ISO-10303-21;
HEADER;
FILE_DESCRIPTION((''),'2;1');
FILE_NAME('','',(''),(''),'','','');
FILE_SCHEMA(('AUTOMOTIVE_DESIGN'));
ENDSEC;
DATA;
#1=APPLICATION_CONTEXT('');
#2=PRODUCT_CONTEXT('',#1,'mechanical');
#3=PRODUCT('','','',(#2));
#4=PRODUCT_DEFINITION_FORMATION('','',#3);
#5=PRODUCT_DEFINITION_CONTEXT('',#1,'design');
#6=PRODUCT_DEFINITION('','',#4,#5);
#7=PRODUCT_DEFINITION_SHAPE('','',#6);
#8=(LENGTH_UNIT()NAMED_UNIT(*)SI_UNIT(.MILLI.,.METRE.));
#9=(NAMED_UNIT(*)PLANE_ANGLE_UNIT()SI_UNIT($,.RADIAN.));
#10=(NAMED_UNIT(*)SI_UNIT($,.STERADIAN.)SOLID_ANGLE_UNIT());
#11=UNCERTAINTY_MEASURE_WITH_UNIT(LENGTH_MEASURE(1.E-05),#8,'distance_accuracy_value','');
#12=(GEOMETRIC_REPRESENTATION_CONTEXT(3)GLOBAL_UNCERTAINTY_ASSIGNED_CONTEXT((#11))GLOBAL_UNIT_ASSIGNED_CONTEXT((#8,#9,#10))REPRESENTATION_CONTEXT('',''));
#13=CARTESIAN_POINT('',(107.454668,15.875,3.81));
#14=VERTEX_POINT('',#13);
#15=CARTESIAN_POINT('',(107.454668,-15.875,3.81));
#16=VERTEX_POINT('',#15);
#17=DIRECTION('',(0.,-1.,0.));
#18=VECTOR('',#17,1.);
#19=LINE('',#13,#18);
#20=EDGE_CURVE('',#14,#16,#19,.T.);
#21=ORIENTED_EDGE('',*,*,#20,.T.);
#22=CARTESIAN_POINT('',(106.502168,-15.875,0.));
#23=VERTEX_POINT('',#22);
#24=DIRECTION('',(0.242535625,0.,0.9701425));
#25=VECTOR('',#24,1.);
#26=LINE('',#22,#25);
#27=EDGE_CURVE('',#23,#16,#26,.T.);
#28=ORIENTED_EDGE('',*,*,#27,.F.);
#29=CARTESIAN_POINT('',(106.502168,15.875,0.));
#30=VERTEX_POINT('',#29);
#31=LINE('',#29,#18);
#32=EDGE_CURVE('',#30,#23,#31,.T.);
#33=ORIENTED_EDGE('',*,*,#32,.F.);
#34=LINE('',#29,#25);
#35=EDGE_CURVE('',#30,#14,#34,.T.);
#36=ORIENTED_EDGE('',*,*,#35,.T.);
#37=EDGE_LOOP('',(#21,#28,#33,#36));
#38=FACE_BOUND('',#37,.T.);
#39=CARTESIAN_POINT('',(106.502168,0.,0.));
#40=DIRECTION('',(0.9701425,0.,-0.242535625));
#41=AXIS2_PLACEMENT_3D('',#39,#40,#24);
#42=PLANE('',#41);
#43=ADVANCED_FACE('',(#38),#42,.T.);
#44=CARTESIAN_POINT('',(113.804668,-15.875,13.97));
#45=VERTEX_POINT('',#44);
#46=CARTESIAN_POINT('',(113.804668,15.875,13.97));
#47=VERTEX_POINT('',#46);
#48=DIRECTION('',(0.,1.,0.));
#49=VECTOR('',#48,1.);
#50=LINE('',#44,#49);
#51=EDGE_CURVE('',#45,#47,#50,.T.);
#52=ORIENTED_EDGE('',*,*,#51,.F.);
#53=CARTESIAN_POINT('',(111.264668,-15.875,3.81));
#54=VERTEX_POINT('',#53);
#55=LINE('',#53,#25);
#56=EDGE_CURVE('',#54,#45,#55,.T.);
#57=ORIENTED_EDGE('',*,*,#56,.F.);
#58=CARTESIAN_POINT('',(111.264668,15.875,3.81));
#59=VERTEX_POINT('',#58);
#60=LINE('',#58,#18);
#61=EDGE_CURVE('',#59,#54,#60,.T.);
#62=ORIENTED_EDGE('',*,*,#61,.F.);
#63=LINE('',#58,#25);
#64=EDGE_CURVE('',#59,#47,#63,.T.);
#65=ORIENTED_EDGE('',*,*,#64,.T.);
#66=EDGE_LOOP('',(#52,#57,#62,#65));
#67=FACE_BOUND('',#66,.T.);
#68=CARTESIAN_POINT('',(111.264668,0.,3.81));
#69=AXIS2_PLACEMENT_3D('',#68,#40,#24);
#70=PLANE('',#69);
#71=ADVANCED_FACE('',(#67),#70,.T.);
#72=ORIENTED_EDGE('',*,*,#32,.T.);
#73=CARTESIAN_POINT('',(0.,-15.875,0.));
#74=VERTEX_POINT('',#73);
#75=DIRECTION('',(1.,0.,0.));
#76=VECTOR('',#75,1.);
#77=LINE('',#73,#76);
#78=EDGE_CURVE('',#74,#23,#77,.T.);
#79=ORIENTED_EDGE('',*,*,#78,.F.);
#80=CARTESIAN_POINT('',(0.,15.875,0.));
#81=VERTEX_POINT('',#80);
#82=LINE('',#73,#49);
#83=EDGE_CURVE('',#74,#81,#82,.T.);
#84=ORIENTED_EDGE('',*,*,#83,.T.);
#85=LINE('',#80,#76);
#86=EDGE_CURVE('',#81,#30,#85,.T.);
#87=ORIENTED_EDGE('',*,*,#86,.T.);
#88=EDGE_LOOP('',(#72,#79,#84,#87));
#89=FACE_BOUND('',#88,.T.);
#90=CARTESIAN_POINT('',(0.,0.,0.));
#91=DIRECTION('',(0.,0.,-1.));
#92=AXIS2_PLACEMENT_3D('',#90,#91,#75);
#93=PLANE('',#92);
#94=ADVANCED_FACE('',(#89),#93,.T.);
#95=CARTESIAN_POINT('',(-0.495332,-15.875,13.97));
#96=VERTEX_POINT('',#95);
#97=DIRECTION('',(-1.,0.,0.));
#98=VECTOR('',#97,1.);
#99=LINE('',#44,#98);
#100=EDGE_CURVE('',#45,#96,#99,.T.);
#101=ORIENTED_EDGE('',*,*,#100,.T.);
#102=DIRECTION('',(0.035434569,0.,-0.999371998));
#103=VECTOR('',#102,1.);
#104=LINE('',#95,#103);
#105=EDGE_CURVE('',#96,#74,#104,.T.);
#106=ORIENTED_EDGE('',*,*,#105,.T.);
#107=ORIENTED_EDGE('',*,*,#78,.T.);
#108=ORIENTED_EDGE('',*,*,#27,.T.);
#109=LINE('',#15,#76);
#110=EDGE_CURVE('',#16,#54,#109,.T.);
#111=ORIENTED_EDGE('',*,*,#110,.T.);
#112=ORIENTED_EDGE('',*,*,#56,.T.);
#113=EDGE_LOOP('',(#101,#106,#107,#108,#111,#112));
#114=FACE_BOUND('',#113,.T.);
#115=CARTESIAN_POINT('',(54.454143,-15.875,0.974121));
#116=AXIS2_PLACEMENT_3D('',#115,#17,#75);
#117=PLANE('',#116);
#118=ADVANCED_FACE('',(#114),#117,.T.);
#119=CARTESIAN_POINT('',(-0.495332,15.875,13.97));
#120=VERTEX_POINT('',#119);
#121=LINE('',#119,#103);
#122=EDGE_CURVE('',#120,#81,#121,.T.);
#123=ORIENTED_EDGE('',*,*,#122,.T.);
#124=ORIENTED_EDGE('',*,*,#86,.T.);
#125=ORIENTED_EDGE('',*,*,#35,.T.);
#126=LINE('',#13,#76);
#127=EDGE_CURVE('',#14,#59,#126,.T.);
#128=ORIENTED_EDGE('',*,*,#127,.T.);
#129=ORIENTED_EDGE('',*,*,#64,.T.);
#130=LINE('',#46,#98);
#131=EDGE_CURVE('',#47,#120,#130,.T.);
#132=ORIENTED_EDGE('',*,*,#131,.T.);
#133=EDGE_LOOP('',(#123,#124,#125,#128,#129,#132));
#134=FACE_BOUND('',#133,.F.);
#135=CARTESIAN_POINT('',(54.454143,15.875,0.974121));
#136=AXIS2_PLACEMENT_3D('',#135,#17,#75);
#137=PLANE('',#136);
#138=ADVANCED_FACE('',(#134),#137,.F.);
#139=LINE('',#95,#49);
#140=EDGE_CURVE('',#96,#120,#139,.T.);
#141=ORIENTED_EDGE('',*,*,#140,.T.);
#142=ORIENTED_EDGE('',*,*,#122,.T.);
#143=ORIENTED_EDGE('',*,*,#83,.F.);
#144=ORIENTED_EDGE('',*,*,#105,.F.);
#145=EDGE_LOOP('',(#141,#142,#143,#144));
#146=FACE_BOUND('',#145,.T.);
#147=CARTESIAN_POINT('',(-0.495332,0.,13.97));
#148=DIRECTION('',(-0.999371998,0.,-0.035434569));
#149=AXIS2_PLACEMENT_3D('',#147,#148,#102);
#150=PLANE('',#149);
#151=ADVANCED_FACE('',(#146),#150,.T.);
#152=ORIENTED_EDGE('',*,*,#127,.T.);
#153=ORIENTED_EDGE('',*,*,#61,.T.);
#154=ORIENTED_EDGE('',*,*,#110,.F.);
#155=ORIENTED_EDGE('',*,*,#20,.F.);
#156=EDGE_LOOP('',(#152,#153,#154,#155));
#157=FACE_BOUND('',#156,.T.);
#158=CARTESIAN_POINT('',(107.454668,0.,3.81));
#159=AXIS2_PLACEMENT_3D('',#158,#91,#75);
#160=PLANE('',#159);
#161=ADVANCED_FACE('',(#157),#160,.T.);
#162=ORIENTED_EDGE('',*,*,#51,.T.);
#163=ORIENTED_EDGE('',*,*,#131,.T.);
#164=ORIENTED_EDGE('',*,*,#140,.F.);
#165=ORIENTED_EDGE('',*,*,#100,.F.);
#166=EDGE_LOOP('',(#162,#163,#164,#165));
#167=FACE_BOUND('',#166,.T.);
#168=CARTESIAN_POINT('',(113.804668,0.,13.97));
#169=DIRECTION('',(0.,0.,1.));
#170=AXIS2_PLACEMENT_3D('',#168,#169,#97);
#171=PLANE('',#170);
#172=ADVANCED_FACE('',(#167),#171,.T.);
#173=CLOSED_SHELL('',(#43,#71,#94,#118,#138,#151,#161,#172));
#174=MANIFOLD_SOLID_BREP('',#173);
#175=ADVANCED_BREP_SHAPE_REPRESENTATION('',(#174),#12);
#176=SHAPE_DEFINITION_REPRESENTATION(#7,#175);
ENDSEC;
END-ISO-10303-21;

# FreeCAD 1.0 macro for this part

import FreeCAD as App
import Part
import Sketcher
from FreeCAD import Vector
Q = App.Units.Quantity

doc = App.newDocument("Part")
body = doc.addObject("PartDesign::Body", "Body")

sketch1 = body.newObject("Sketcher::SketchObject", "Sketch")
sketch1.AttachmentSupport = (doc.getObject("XZ_Plane"), [""])
sketch1.MapMode = "FlatFace"
sketch1.addGeometry([
    Part.LineSegment(Vector(0, 0, 0), Vector(106.5, 0, 0)),
    Part.LineSegment(Vector(106.5, 0, 0), Vector(107.5, 3.8, 0)),
    Part.LineSegment(Vector(107.5, 3.8, 0), Vector(111.3, 3.8, 0)),
    Part.LineSegment(Vector(111.3, 3.8, 0), Vector(113.8, 14, 0)),
    Part.LineSegment(Vector(113.8, 14, 0), Vector(-0.5, 14, 0)),
    Part.LineSegment(Vector(-0.5, 14, 0), Vector(0, 0, 0)),
], False)
sketch1.addConstraint([
    Sketcher.Constraint("Coincident", 0, 2, 1, 1),
    Sketcher.Constraint("Coincident", 1, 2, 2, 1),
    Sketcher.Constraint("Coincident", 2, 2, 3, 1),
    Sketcher.Constraint("Coincident", 3, 2, 4, 1),
    Sketcher.Constraint("Coincident", 4, 2, 5, 1),
    Sketcher.Constraint("Coincident", 5, 2, 0, 1),
    Sketcher.Constraint("Horizontal", 0),
    Sketcher.Constraint("Horizontal", 2),
    Sketcher.Constraint("Horizontal", 4),
    Sketcher.Constraint("Coincident", 5, 2, -1, 1),
    Sketcher.Constraint("Parallel", 1, 3),
    Sketcher.Constraint("DistanceX", 4, 2, 4, 1, Q("4.5 in")),
    Sketcher.Constraint("DistanceX", 2, 1, 2, 2, Q("0.15 in")),
    Sketcher.Constraint("DistanceX", 2, 2, 3, 2, Q("0.1 in")),
    Sketcher.Constraint("DistanceY", 2, 2, 3, 2, Q("0.4 in")),
    Sketcher.Constraint("DistanceY", -1, 1, 1, 2, Q("0.15 in")),
    Sketcher.Constraint("Distance", 5, 13.978779),
])
pad1 = body.newObject("PartDesign::Pad", "Pad")
pad1.Profile = sketch1
pad1.Length = Q("1.25 in")
pad1.Midplane = True

doc.recompute()
